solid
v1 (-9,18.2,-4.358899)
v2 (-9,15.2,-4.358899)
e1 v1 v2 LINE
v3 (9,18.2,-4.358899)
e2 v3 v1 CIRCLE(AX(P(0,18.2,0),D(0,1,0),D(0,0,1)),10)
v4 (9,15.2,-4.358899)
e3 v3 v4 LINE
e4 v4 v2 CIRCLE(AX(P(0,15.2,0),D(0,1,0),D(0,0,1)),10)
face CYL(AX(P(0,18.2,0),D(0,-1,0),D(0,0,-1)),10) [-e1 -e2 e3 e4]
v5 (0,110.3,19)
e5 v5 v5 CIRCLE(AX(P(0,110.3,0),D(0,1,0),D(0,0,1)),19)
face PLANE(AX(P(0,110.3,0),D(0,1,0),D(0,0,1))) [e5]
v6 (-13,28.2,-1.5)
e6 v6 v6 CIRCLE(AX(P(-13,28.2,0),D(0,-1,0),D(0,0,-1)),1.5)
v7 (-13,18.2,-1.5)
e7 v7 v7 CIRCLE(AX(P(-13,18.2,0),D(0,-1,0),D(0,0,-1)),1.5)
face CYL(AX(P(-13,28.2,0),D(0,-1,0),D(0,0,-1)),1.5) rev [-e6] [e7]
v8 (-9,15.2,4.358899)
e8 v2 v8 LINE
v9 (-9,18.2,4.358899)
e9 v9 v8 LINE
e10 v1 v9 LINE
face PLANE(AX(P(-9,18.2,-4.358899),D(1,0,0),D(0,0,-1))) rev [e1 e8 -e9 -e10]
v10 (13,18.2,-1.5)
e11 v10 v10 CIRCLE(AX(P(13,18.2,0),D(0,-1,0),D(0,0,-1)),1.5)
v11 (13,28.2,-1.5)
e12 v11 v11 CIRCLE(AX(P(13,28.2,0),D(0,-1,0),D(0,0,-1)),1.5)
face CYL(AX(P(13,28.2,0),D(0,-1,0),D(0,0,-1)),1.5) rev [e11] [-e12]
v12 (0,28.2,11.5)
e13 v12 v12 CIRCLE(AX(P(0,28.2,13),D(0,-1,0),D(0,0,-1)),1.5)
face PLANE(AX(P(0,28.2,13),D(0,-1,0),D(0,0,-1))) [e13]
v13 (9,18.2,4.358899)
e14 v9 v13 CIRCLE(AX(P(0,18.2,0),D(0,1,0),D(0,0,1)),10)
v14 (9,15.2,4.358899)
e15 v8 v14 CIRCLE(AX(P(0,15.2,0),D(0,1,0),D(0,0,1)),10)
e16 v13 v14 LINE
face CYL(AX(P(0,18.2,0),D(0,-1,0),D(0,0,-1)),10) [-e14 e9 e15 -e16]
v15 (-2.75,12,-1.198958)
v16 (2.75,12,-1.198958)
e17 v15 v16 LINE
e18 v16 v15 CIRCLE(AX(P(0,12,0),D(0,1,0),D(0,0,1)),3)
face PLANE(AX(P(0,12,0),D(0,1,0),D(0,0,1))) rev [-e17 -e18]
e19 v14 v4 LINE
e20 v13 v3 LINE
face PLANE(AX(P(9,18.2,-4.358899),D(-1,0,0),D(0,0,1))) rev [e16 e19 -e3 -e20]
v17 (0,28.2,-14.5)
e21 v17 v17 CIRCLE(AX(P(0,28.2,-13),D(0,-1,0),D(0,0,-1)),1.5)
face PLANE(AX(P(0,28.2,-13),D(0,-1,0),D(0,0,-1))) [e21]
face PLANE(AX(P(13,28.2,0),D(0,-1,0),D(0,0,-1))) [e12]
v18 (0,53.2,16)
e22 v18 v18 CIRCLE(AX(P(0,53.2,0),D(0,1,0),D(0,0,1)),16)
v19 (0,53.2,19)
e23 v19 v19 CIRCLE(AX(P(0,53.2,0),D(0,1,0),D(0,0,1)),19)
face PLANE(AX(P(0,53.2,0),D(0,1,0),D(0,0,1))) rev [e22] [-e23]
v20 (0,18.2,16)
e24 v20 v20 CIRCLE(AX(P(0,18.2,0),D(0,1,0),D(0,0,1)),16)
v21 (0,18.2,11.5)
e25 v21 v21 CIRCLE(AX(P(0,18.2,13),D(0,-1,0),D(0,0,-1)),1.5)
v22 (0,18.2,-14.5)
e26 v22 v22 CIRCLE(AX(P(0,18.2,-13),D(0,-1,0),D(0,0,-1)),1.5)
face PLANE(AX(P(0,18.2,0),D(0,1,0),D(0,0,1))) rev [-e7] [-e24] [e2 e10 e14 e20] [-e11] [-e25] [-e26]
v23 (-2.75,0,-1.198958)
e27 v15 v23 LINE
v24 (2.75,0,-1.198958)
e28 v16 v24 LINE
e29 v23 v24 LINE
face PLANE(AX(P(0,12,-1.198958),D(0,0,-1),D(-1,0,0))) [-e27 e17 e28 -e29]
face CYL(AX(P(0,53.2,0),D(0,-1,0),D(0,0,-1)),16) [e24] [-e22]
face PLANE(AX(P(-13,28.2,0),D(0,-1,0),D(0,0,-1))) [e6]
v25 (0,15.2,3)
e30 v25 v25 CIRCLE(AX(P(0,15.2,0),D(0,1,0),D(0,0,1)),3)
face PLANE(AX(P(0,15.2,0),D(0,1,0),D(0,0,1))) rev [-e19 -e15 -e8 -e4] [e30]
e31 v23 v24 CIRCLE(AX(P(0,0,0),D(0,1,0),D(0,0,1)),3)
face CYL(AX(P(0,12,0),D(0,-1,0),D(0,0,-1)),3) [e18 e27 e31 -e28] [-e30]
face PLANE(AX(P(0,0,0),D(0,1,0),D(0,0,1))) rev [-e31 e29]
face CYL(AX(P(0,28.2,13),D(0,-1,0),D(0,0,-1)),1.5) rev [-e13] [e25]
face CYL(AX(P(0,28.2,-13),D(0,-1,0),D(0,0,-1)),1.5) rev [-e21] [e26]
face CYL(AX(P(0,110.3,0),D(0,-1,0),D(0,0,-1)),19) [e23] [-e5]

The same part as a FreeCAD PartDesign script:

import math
import FreeCAD as App
import Part
import Sketcher

doc = App.newDocument("Part")
body = doc.addObject("PartDesign::Body", "Body")

sketch1 = body.newObject("Sketcher::SketchObject", "Sketch")
sketch1.AttachmentSupport = (doc.getObject("XZ_Plane"), [""])
sketch1.MapMode = "FlatFace"
sketch1.addGeometry([
    Part.LineSegment(App.Vector(2.75, -1.198958, 0), App.Vector(-2.75, -1.198958, 0)),
    Part.ArcOfCircle(Part.Circle(App.Vector(0, 0, 0), App.Vector(0, 0, 1), 3), math.radians(0), math.radians(203.556464)),
    Part.ArcOfCircle(Part.Circle(App.Vector(0, 0, 0), App.Vector(0, 0, 1), 3), math.radians(-23.556464), math.radians(0)),
], False)
sketch1.addConstraint([
    Sketcher.Constraint("Coincident", 0, 2, 1, 2),
    Sketcher.Constraint("Tangent", 1, 1, 2, 2),
    Sketcher.Constraint("Coincident", 2, 1, 0, 1),
    Sketcher.Constraint("Horizontal", 0),
    Sketcher.Constraint("Coincident", 1, 3, -1, 1),
    Sketcher.Constraint("Equal", 1, 2),
    Sketcher.Constraint("PointOnObject", 1, 1, -1),
    Sketcher.Constraint("Radius", 1, 3.0),
    Sketcher.Constraint("DistanceX", 0, 2, 0, 1, 5.5),
])
pad1 = body.newObject("PartDesign::Pad", "Pad")
pad1.Profile = sketch1
pad1.Length = 12
pad1.Reversed = True

sketch2 = body.newObject("Sketcher::SketchObject", "Sketch001")
sketch2.AttachmentSupport = (doc.getObject("XZ_Plane"), [""])
sketch2.MapMode = "FlatFace"
sketch2.AttachmentOffset = App.Placement(App.Vector(0, 0, -12), App.Rotation())
sketch2.addGeometry([
    Part.ArcOfCircle(Part.Circle(App.Vector(0, 0, 0), App.Vector(0, 0, 1), 3), math.radians(-23.556464), math.radians(0)),
    Part.ArcOfCircle(Part.Circle(App.Vector(0, 0, 0), App.Vector(0, 0, 1), 3), math.radians(-156.443536), math.radians(-23.556464)),
    Part.ArcOfCircle(Part.Circle(App.Vector(0, 0, 0), App.Vector(0, 0, 1), 3), math.radians(0), math.radians(203.556464)),
], False)
sketch2.addConstraint([
    Sketcher.Constraint("Tangent", 0, 1, 1, 2),
    Sketcher.Constraint("Tangent", 1, 1, 2, 2),
    Sketcher.Constraint("Tangent", 2, 1, 0, 2),
    Sketcher.Constraint("Coincident", 0, 3, -1, 1),
    Sketcher.Constraint("PointOnObject", 2, 1, -1),
    Sketcher.Constraint("Horizontal", 0, 1, 1, 1),
    Sketcher.Constraint("Radius", 0, 3.0),
    Sketcher.Constraint("DistanceX", 1, 1, 0, 1, 5.5),
])
pad2 = body.newObject("PartDesign::Pad", "Pad001")
pad2.Profile = sketch2
pad2.Length = 3.2
pad2.Reversed = True

sketch3 = body.newObject("Sketcher::SketchObject", "Sketch002")
sketch3.AttachmentSupport = (doc.getObject("XZ_Plane"), [""])
sketch3.MapMode = "FlatFace"
sketch3.AttachmentOffset = App.Placement(App.Vector(0, 0, -15.2), App.Rotation())
sketch3.addGeometry([
    Part.LineSegment(App.Vector(-9, -4.358899, 0), App.Vector(-9, 4.358899, 0)),
    Part.ArcOfCircle(Part.Circle(App.Vector(0, 0, 0), App.Vector(0, 0, 1), 10), math.radians(25.841933), math.radians(154.158067)),
    Part.LineSegment(App.Vector(9, 4.358899, 0), App.Vector(9, -4.358899, 0)),
    Part.ArcOfCircle(Part.Circle(App.Vector(0, 0, 0), App.Vector(0, 0, 1), 10), math.radians(-154.158067), math.radians(-25.841933)),
], False)
sketch3.addConstraint([
    Sketcher.Constraint("Coincident", 0, 2, 1, 2),
    Sketcher.Constraint("Coincident", 1, 1, 2, 1),
    Sketcher.Constraint("Coincident", 2, 2, 3, 2),
    Sketcher.Constraint("Coincident", 3, 1, 0, 1),
    Sketcher.Constraint("Vertical", 0),
    Sketcher.Constraint("Vertical", 2),
    Sketcher.Constraint("Coincident", 1, 3, -1, 1),
    Sketcher.Constraint("Coincident", 3, 3, -1, 1),
    Sketcher.Constraint("Equal", 1, 3),
    Sketcher.Constraint("Horizontal", 0, 2, 1, 1),
    Sketcher.Constraint("Radius", 1, 10.0),
    Sketcher.Constraint("DistanceX", 0, 2, -1, 1, 9.0),
])
pad3 = body.newObject("PartDesign::Pad", "Pad002")
pad3.Profile = sketch3
pad3.Length = 3
pad3.Reversed = True

sketch4 = body.newObject("Sketcher::SketchObject", "Sketch003")
sketch4.AttachmentSupport = (doc.getObject("XZ_Plane"), [""])
sketch4.MapMode = "FlatFace"
sketch4.AttachmentOffset = App.Placement(App.Vector(0, 0, -18.2), App.Rotation())
sketch4.addGeometry(Part.Circle(App.Vector(0, 0, 0), App.Vector(0, 0, 1), 16), False)
sketch4.addConstraint([
    Sketcher.Constraint("Coincident", 0, 3, -1, 1),
    Sketcher.Constraint("Diameter", 0, 32.0),
])
pad4 = body.newObject("PartDesign::Pad", "Pad003")
pad4.Profile = sketch4
pad4.Length = 35
pad4.Reversed = True

sketch5 = body.newObject("Sketcher::SketchObject", "Sketch004")
sketch5.AttachmentSupport = (doc.getObject("XZ_Plane"), [""])
sketch5.MapMode = "FlatFace"
sketch5.AttachmentOffset = App.Placement(App.Vector(0, 0, -53.2), App.Rotation())
sketch5.addGeometry(Part.Circle(App.Vector(0, 0, 0), App.Vector(0, 0, 1), 19), False)
sketch5.addConstraint([
    Sketcher.Constraint("Coincident", 0, 3, -1, 1),
    Sketcher.Constraint("Diameter", 0, 38.0),
])
pad5 = body.newObject("PartDesign::Pad", "Pad004")
pad5.Profile = sketch5
pad5.Length = 57.1
pad5.Reversed = True

sketch6 = body.newObject("Sketcher::SketchObject", "Sketch005")
sketch6.AttachmentSupport = (doc.getObject("XZ_Plane"), [""])
sketch6.MapMode = "FlatFace"
sketch6.AttachmentOffset = App.Placement(App.Vector(0, 0, -18.2), App.Rotation())
sketch6.addGeometry([
    Part.Circle(App.Vector(0, 13, 0), App.Vector(0, 0, 1), 1.5),
    Part.Circle(App.Vector(13, 0, 0), App.Vector(0, 0, 1), 1.5),
    Part.Circle(App.Vector(0, -13, 0), App.Vector(0, 0, 1), 1.5),
    Part.Circle(App.Vector(-13, 0, 0), App.Vector(0, 0, 1), 1.5),
], False)
sketch6.addConstraint([
    Sketcher.Constraint("Equal", 0, 1),
    Sketcher.Constraint("Equal", 1, 2),
    Sketcher.Constraint("Equal", 2, 3),
    Sketcher.Constraint("Symmetric", 0, 3, 2, 3, -1, 1),
    Sketcher.Constraint("Symmetric", 1, 3, 3, 3, -1, 1),
    Sketcher.Constraint("PointOnObject", 0, 3, -2),
    Sketcher.Constraint("PointOnObject", 1, 3, -1),
    Sketcher.Constraint("Diameter", 0, 3.0),
    Sketcher.Constraint("DistanceY", -1, 1, 0, 3, 13.0),
    Sketcher.Constraint("DistanceX", -1, 1, 1, 3, 13.0),
])
pocket1 = body.newObject("PartDesign::Pocket", "Pocket")
pocket1.Profile = sketch6
pocket1.Length = 10

doc.recompute()
